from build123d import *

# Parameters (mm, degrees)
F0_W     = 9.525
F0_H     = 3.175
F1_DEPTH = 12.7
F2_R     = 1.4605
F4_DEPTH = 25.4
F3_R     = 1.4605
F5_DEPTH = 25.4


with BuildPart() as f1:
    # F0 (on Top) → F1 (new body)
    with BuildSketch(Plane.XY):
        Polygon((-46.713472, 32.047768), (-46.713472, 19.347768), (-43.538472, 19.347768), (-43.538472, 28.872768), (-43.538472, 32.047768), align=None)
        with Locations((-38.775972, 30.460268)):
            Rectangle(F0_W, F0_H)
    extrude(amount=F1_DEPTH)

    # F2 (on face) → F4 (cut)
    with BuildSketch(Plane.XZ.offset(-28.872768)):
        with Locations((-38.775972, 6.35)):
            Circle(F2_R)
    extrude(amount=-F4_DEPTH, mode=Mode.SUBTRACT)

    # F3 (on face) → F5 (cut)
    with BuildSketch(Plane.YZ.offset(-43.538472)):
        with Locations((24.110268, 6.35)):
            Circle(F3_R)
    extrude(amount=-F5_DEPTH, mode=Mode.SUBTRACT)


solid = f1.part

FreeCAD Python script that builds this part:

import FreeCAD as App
import Part
import Sketcher

V = App.Vector
Q = App.Units.Quantity

doc = App.newDocument("Part")
body = doc.addObject("PartDesign::Body", "Body")

sketch1 = body.newObject("Sketcher::SketchObject", "Sketch")
sketch1.AttachmentSupport = (doc.getObject("XY_Plane"), [""])
sketch1.MapMode = "FlatFace"
sketch1.addGeometry([
    Part.LineSegment(V(-46.7, 32, 0), V(-46.7, 19.3, 0)),
    Part.LineSegment(V(-46.7, 19.3, 0), V(-43.5, 19.3, 0)),
    Part.LineSegment(V(-43.5, 19.3, 0), V(-43.5, 28.9, 0)),
    Part.LineSegment(V(-43.5, 28.9, 0), V(-34, 28.9, 0)),
    Part.LineSegment(V(-34, 28.9, 0), V(-34, 32, 0)),
    Part.LineSegment(V(-34, 32, 0), V(-46.7, 32, 0)),
], False)
sketch1.addConstraint([
    Sketcher.Constraint("Coincident", 0, 2, 1, 1),
    Sketcher.Constraint("Coincident", 1, 2, 2, 1),
    Sketcher.Constraint("Coincident", 2, 2, 3, 1),
    Sketcher.Constraint("Coincident", 3, 2, 4, 1),
    Sketcher.Constraint("Coincident", 4, 2, 5, 1),
    Sketcher.Constraint("Coincident", 5, 2, 0, 1),
    Sketcher.Constraint("Vertical", 0),
    Sketcher.Constraint("Horizontal", 1),
    Sketcher.Constraint("Vertical", 2),
    Sketcher.Constraint("Horizontal", 3),
    Sketcher.Constraint("Vertical", 4),
    Sketcher.Constraint("Horizontal", 5),
    Sketcher.Constraint("Equal", 5, 0),
    Sketcher.Constraint("Equal", 3, 2),
    Sketcher.Constraint("DistanceX", 5, 2, 5, 1, Q("0.5 in")),
    Sketcher.Constraint("DistanceX", 1, 1, 1, 2, Q("0.125 in")),
    Sketcher.Constraint("DistanceY", -1, 1, 2, 2, 28.872768),
    Sketcher.Constraint("DistanceX", 0, 2, -1, 1, 46.713472),
])
pad1 = body.newObject("PartDesign::Pad", "Pad")
pad1.Profile = sketch1
pad1.Length = Q("0.5 in")

sketch2 = body.newObject("Sketcher::SketchObject", "Sketch001")
sketch2.AttachmentSupport = (doc.getObject("XZ_Plane"), [""])
sketch2.MapMode = "FlatFace"
sketch2.AttachmentOffset = App.Placement(V(0, 0, -28.872768), App.Rotation())
sketch2.addGeometry(Part.Circle(V(-38.8, 6.3, 0), V(0, 0, 1), 1.5), False)
sketch2.addConstraint([
    Sketcher.Constraint("Diameter", 0, Q("0.115 in")),
    Sketcher.Constraint("DistanceY", -1, 1, 0, 3, Q("0.25 in")),
    Sketcher.Constraint("DistanceX", 0, 3, -1, 1, 38.775972),
])
pocket1 = body.newObject("PartDesign::Pocket", "Pocket")
pocket1.Profile = sketch2
pocket1.Length = Q("1 in")

sketch3 = body.newObject("Sketcher::SketchObject", "Sketch002")
sketch3.AttachmentSupport = (doc.getObject("YZ_Plane"), [""])
sketch3.MapMode = "FlatFace"
sketch3.AttachmentOffset = App.Placement(V(0, 0, -43.538472), App.Rotation())
sketch3.addGeometry(Part.Circle(V(24.1, 6.3, 0), V(0, 0, 1), 1.5), False)
sketch3.addConstraint([
    Sketcher.Constraint("Diameter", 0, Q("0.115 in")),
    Sketcher.Constraint("DistanceY", -1, 1, 0, 3, Q("0.25 in")),
    Sketcher.Constraint("DistanceX", -1, 1, 0, 3, 24.110268),
])
pocket2 = body.newObject("PartDesign::Pocket", "Pocket001")
pocket2.Profile = sketch3
pocket2.Length = Q("1 in")

doc.recompute()
